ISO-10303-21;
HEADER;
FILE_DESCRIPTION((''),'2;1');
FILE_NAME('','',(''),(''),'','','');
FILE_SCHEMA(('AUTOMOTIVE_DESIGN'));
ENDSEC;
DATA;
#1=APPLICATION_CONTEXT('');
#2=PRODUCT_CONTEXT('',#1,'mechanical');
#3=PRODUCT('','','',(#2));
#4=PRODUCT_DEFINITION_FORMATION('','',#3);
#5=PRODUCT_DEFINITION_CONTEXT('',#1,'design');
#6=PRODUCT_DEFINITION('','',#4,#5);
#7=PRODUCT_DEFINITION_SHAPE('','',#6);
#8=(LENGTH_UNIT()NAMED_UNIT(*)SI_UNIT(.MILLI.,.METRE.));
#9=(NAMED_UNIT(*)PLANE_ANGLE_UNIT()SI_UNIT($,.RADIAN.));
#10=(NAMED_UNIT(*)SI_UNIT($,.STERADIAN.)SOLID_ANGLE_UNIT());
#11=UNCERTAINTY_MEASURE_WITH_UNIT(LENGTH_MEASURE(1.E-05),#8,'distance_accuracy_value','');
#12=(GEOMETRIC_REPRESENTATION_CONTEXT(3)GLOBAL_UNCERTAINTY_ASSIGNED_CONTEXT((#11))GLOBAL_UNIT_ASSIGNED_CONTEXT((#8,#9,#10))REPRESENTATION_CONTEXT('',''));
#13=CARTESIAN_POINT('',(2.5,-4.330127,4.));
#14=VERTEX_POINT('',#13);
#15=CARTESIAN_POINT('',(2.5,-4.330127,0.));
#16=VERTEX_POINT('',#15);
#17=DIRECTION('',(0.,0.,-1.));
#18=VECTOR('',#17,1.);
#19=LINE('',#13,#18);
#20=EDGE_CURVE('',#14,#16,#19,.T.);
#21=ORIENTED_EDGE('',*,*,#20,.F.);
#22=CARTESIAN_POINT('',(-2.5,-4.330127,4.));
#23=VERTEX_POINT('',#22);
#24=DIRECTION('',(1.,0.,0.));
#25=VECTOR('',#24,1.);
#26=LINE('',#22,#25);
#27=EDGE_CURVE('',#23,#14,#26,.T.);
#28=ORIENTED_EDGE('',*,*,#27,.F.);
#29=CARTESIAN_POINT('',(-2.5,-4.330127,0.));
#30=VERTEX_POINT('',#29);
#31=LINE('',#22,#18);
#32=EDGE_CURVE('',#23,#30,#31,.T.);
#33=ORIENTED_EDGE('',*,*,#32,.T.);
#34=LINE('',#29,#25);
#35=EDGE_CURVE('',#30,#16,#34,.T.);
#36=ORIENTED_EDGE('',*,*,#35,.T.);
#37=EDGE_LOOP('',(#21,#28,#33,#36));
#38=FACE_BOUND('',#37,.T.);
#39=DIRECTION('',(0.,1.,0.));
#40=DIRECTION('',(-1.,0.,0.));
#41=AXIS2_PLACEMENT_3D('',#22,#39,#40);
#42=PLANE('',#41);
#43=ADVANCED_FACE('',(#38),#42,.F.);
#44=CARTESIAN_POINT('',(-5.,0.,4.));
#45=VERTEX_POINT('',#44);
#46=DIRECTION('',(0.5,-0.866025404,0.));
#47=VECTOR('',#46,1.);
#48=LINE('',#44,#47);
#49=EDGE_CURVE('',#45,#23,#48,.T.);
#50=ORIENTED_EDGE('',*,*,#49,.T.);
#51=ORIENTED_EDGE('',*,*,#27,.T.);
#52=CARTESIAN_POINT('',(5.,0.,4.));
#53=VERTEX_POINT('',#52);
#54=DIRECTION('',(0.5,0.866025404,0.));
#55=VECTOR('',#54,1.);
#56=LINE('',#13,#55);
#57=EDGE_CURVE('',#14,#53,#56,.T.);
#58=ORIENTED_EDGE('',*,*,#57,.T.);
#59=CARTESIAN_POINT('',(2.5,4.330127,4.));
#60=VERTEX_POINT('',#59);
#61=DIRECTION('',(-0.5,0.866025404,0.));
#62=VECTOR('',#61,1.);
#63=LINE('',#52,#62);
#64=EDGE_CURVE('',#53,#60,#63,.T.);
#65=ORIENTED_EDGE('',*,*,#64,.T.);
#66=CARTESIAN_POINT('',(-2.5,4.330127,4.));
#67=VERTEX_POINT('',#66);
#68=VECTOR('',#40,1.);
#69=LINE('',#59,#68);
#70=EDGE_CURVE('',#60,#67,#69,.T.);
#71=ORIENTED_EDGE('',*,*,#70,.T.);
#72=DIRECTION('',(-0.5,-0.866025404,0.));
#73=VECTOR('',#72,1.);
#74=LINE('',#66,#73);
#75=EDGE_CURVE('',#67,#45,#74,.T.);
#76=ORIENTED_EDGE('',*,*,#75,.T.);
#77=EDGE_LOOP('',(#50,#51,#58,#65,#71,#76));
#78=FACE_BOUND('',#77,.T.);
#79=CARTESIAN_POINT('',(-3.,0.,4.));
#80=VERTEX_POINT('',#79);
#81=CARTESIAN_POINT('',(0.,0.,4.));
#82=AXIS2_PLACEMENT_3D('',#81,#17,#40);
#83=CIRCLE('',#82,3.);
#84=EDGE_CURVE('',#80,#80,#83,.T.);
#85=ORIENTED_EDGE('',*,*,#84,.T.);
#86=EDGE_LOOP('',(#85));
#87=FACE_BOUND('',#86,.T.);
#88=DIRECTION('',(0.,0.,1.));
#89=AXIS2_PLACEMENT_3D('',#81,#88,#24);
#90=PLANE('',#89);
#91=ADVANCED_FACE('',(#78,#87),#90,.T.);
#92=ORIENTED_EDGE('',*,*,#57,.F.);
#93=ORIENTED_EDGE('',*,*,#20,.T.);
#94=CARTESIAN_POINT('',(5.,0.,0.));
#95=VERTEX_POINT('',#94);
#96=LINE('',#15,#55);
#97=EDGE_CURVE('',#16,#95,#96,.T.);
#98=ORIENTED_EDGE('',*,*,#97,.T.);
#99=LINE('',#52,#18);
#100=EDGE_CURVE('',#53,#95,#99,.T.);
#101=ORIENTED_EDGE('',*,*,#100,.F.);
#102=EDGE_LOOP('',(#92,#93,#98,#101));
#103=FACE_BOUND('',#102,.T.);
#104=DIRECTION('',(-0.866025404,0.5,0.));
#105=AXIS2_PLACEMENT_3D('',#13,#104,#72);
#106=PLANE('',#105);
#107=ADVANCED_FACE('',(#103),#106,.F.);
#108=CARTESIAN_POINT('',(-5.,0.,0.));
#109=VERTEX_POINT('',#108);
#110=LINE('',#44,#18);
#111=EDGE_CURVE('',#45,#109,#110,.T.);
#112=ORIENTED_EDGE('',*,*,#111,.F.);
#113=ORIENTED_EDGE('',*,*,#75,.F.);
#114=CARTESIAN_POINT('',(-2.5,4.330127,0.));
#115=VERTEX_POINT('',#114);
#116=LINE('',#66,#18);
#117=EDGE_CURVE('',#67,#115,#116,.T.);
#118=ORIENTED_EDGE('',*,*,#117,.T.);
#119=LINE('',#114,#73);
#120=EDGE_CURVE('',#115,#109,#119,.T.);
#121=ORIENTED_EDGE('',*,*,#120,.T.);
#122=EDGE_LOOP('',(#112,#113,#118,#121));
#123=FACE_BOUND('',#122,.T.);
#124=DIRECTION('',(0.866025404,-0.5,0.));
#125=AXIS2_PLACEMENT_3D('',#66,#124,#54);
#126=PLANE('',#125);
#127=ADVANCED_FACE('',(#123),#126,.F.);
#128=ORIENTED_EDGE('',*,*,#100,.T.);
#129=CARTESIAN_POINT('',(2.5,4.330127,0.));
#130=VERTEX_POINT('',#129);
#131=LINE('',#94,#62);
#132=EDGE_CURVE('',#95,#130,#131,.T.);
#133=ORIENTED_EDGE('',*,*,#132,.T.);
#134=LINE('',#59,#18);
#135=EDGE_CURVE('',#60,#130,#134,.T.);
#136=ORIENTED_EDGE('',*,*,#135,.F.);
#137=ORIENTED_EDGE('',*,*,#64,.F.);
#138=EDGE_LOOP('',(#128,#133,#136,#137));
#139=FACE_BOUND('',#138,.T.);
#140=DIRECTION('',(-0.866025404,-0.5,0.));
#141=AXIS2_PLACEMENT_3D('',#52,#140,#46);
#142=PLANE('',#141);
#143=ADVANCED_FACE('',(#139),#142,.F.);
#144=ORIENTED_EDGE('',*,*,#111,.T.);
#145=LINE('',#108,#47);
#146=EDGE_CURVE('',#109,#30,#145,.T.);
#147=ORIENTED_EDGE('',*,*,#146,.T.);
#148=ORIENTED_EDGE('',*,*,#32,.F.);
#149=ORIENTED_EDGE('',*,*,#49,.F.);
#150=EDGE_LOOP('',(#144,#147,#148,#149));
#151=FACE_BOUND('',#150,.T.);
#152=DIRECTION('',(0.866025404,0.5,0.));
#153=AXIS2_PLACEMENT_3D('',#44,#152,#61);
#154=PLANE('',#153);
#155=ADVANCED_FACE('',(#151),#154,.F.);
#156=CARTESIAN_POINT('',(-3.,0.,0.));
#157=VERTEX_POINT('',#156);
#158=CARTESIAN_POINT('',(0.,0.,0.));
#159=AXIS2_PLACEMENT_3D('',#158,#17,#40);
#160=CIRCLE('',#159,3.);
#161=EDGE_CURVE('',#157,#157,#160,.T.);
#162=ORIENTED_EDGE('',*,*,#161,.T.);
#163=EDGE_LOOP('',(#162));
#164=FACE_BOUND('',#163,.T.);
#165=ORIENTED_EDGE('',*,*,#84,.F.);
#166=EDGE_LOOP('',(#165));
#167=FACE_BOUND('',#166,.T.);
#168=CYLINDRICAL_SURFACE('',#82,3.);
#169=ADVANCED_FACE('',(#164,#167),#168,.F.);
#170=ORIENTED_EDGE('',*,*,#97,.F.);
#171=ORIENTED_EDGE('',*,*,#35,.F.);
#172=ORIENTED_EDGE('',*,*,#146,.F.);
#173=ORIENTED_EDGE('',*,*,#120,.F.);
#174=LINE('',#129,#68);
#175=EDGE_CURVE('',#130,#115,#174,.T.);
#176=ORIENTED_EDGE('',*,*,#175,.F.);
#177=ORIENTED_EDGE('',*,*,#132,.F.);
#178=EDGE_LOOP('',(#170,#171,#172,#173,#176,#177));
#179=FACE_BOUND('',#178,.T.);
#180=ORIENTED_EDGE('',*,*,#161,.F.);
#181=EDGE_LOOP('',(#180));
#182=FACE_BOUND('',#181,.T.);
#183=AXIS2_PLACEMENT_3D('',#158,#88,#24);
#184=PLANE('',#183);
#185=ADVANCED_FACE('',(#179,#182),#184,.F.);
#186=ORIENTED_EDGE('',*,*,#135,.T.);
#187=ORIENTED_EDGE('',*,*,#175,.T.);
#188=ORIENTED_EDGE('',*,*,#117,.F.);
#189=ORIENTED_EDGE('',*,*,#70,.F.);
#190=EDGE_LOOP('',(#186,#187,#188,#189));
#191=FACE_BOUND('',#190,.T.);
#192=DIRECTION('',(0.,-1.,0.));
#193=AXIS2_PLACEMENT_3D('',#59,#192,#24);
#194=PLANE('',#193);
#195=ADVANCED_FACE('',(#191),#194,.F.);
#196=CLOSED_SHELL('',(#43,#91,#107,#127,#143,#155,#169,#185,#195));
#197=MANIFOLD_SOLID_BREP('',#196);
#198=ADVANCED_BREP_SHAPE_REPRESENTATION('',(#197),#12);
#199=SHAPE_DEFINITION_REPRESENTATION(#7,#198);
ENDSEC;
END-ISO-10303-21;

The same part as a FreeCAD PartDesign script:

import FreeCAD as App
import Part
import Sketcher
from FreeCAD import Vector
Q = App.Units.Quantity


def add_polygon(sketch, points):
    """Adds a closed chain of lines whose ends are joined by coincident constraints."""
    first, n = sketch.GeometryCount, len(points)
    for a, b in zip(points, points[1:] + points[:1]):
        sketch.addGeometry(Part.LineSegment(App.Vector(*a, 0), App.Vector(*b, 0)), False)
    for i in range(n):
        sketch.addConstraint(Sketcher.Constraint("Coincident", first + i, 2, first + (i + 1) % n, 1))

doc = App.newDocument("Part")
body = doc.addObject("PartDesign::Body", "Body")

sketch1 = body.newObject("Sketcher::SketchObject", "Sketch")
sketch1.AttachmentSupport = (doc.getObject("XY_Plane"), [""])
sketch1.MapMode = "FlatFace"
add_polygon(sketch1, [(5, 0), (2, 4), (-2, 4), (-5, 0), (-2, -4), (2, -4)])
sketch1.addConstraint([
    Sketcher.Constraint("Horizontal", 1),
    Sketcher.Constraint("Horizontal", 4),
    Sketcher.Constraint("Symmetric", 0, 2, 3, 2, -1, 1),
    Sketcher.Constraint("Symmetric", 2, 2, 5, 2, -1, 1),
    Sketcher.Constraint("PointOnObject", 2, 2, -1),
    Sketcher.Constraint("Parallel", 2, 5),
    Sketcher.Constraint("Vertical", 1, 2, 3, 2),
    Sketcher.Constraint("DistanceX", 1, 2, 1, 1, 5.0),
    Sketcher.Constraint("Angle", 0, Q("120 deg")),
    Sketcher.Constraint("Distance", 0, 5.0),
])
pad1 = body.newObject("PartDesign::Pad", "Pad")
pad1.Profile = sketch1
pad1.Length = 4

sketch2 = body.newObject("Sketcher::SketchObject", "Sketch001")
sketch2.AttachmentSupport = (doc.getObject("XY_Plane"), [""])
sketch2.MapMode = "FlatFace"
sketch2.addGeometry(Part.Circle(Vector(0, 0, 0), Vector(0, 0, 1), 3), False)
sketch2.addConstraint([
    Sketcher.Constraint("Coincident", 0, 3, -1, 1),
    Sketcher.Constraint("Diameter", 0, 6.0),
])
pocket1 = body.newObject("PartDesign::Pocket", "Pocket")
pocket1.Profile = sketch2
pocket1.Type = "ThroughAll"
pocket1.Reversed = True

doc.recompute()
